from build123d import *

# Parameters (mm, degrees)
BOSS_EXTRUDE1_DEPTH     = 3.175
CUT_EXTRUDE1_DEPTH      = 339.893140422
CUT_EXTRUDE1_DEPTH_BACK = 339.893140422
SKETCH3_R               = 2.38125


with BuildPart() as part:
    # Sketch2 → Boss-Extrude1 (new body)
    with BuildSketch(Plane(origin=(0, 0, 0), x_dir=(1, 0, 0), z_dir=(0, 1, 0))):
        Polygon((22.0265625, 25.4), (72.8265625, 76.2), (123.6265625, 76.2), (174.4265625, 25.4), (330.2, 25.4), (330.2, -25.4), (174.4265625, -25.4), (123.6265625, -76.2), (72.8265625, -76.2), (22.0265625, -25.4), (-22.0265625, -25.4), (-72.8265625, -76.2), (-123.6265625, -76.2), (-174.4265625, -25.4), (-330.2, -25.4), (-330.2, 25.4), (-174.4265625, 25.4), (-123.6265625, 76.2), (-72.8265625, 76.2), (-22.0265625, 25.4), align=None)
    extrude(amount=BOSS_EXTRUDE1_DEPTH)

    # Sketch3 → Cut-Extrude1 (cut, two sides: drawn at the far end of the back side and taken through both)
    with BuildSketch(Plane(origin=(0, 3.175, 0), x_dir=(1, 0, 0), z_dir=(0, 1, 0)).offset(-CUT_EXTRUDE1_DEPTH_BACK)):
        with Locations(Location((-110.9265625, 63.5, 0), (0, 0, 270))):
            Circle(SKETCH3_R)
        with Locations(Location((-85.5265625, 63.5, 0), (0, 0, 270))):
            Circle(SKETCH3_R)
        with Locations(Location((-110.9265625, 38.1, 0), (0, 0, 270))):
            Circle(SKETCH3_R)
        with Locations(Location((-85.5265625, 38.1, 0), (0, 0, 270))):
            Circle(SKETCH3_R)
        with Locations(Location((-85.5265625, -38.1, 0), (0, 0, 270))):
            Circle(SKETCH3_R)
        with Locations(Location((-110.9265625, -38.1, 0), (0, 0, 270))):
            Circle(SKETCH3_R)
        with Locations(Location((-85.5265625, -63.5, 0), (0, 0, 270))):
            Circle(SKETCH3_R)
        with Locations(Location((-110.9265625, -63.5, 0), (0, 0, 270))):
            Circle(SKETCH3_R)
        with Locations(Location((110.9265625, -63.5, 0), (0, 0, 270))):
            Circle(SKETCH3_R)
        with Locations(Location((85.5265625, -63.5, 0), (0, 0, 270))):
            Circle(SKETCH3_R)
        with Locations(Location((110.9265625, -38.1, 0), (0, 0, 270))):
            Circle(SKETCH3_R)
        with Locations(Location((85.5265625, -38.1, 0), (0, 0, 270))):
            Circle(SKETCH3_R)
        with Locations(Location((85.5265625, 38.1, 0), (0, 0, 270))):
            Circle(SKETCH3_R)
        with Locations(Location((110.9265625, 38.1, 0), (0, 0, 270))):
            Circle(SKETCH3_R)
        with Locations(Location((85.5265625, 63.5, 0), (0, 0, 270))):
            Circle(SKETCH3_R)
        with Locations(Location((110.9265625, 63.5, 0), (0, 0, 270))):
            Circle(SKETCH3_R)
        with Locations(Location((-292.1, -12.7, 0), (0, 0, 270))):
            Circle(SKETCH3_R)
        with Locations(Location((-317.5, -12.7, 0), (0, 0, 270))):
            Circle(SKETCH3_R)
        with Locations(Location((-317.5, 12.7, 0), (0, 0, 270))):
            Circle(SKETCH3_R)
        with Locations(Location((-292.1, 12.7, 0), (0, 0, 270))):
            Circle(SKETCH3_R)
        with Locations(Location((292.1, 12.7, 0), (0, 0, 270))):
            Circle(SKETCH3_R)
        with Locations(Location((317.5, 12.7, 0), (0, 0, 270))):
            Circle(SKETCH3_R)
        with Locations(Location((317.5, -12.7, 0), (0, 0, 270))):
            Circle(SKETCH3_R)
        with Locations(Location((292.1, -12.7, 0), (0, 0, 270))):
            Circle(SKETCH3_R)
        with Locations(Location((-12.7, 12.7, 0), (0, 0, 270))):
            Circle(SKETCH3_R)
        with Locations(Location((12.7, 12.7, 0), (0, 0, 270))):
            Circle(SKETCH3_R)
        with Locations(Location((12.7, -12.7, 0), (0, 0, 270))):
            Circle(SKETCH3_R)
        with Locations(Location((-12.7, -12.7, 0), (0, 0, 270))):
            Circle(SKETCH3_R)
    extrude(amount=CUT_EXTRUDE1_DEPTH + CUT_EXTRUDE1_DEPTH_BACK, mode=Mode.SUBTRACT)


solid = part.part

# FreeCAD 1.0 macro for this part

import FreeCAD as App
import Part
import Sketcher

V = App.Vector
Q = App.Units.Quantity


def add_polygon(sketch, points):
    """Adds a closed chain of lines whose ends are joined by coincident constraints."""
    first, n = sketch.GeometryCount, len(points)
    for a, b in zip(points, points[1:] + points[:1]):
        sketch.addGeometry(Part.LineSegment(App.Vector(*a, 0), App.Vector(*b, 0)), False)
    for i in range(n):
        sketch.addConstraint(Sketcher.Constraint("Coincident", first + i, 2, first + (i + 1) % n, 1))

doc = App.newDocument("Part")
body = doc.addObject("PartDesign::Body", "Body")

# Sketch on XZ plane
sketch1 = body.newObject("Sketcher::SketchObject", "Sketch")
sketch1.AttachmentSupport = (doc.getObject("XZ_Plane"), [""])
sketch1.MapMode = "FlatFace"
add_polygon(sketch1, [(73, -76), (22, -25), (-22, -25), (-73, -76), (-124, -76), (-174, -25), (-330, -25), (-330, 25), (-174, 25), (-124, 76), (-73, 76), (-22, 25), (22, 25), (73, 76), (124, 76), (174, 25), (330, 25), (330, -25), (174, -25), (124, -76)])  # lines 0-19
sketch1.addConstraint([
    Sketcher.Constraint("Horizontal", 1),
    Sketcher.Constraint("Horizontal", 3),
    Sketcher.Constraint("Horizontal", 5),
    Sketcher.Constraint("Vertical", 6),
    Sketcher.Constraint("Horizontal", 7),
    Sketcher.Constraint("Horizontal", 9),
    Sketcher.Constraint("Horizontal", 11),
    Sketcher.Constraint("Horizontal", 13),
    Sketcher.Constraint("Horizontal", 15),
    Sketcher.Constraint("Vertical", 16),
    Sketcher.Constraint("Horizontal", 17),
    Sketcher.Constraint("Horizontal", 19),
    Sketcher.Constraint("Symmetric", 0, 2, 10, 2, -1, 1),
    Sketcher.Constraint("Symmetric", 2, 2, 12, 2, -1, 1),
    Sketcher.Constraint("Symmetric", 4, 2, 14, 2, -1, 1),
    Sketcher.Constraint("Symmetric", 6, 2, 16, 2, -1, 1),
    Sketcher.Constraint("Symmetric", 8, 2, 18, 2, -1, 1),
    Sketcher.Constraint("Symmetric", 9, 2, 12, 2, -2),
    Sketcher.Constraint("Symmetric", 7, 2, 14, 2, -2),
    Sketcher.Constraint("Perpendicular", 0, 2),
    Sketcher.Constraint("Perpendicular", 2, 4),
    Sketcher.Constraint("Perpendicular", 4, 8),
    Sketcher.Constraint("Perpendicular", 8, 10),
    Sketcher.Constraint("Perpendicular", 10, 12),
    Sketcher.Constraint("Perpendicular", 12, 14),
    Sketcher.Constraint("Perpendicular", 14, 18),
    Sketcher.Constraint("Horizontal", 1, 2, 4, 2),
    Sketcher.Constraint("Vertical", 3, 2, 8, 2),
    Sketcher.Constraint("Equal", 19, 6),
    Sketcher.Constraint("DistanceX", 3, 2, 3, 1, Q("2 in")),
    Sketcher.Constraint("DistanceY", 2, 2, -1, 1, Q("3 in")),
    Sketcher.Constraint("DistanceX", 5, 2, -1, 1, Q("13 in")),
    Sketcher.Constraint("DistanceX", 1, 2, 1, 1, Q("1.734375 in")),
])
pad1 = body.newObject("PartDesign::Pad", "Pad")
pad1.Profile = sketch1
pad1.Length = Q("0.125 in")
pad1.Reversed = True

# Sketch on XZ plane
sketch2 = body.newObject("Sketcher::SketchObject", "Sketch001")
sketch2.AttachmentSupport = (doc.getObject("XZ_Plane"), [""])
sketch2.MapMode = "FlatFace"
sketch2.AttachmentOffset = App.Placement(V(0, 0, -0.125 * 25.4), App.Rotation())
sketch2.addGeometry([
    Part.Circle(V(-110.9, -63.5, 0), V(0, 0, 1), 2.4),  # 0
    Part.Circle(V(-85.5, -63.5, 0), V(0, 0, 1), 2.4),  # 1
    Part.Circle(V(-110.9, -38.1, 0), V(0, 0, 1), 2.4),  # 2
    Part.Circle(V(-85.5, -38.1, 0), V(0, 0, 1), 2.4),  # 3
    Part.Circle(V(-85.5, 38.1, 0), V(0, 0, 1), 2.4),  # 4
    Part.Circle(V(-110.9, 38.1, 0), V(0, 0, 1), 2.4),  # 5
    Part.Circle(V(-85.5, 63.5, 0), V(0, 0, 1), 2.4),  # 6
    Part.Circle(V(-110.9, 63.5, 0), V(0, 0, 1), 2.4),  # 7
    Part.Circle(V(110.9, 63.5, 0), V(0, 0, 1), 2.4),  # 8
    Part.Circle(V(85.5, 63.5, 0), V(0, 0, 1), 2.4),  # 9
    Part.Circle(V(110.9, 38.1, 0), V(0, 0, 1), 2.4),  # 10
    Part.Circle(V(85.5, 38.1, 0), V(0, 0, 1), 2.4),  # 11
    Part.Circle(V(85.5, -38.1, 0), V(0, 0, 1), 2.4),  # 12
    Part.Circle(V(110.9, -38.1, 0), V(0, 0, 1), 2.4),  # 13
    Part.Circle(V(85.5, -63.5, 0), V(0, 0, 1), 2.4),  # 14
    Part.Circle(V(110.9, -63.5, 0), V(0, 0, 1), 2.4),  # 15
    Part.Circle(V(-292.1, 12.7, 0), V(0, 0, 1), 2.4),  # 16
    Part.Circle(V(-317.5, 12.7, 0), V(0, 0, 1), 2.4),  # 17
    Part.Circle(V(-317.5, -12.7, 0), V(0, 0, 1), 2.4),  # 18
    Part.Circle(V(-292.1, -12.7, 0), V(0, 0, 1), 2.4),  # 19
    Part.Circle(V(292.1, -12.7, 0), V(0, 0, 1), 2.4),  # 20
    Part.Circle(V(317.5, -12.7, 0), V(0, 0, 1), 2.4),  # 21
    Part.Circle(V(317.5, 12.7, 0), V(0, 0, 1), 2.4),  # 22
    Part.Circle(V(292.1, 12.7, 0), V(0, 0, 1), 2.4),  # 23
    Part.Circle(V(-12.7, -12.7, 0), V(0, 0, 1), 2.4),  # 24
    Part.Circle(V(12.7, -12.7, 0), V(0, 0, 1), 2.4),  # 25
    Part.Circle(V(12.7, 12.7, 0), V(0, 0, 1), 2.4),  # 26
    Part.Circle(V(-12.7, 12.7, 0), V(0, 0, 1), 2.4),  # 27
], False)
sketch2.addConstraint([
    Sketcher.Constraint("Equal", 0, 1),
    Sketcher.Constraint("Equal", 1, 2),
    Sketcher.Constraint("Equal", 2, 3),
    Sketcher.Constraint("Equal", 3, 4),
    Sketcher.Constraint("Equal", 4, 5),
    Sketcher.Constraint("Equal", 5, 6),
    Sketcher.Constraint("Equal", 6, 7),
    Sketcher.Constraint("Equal", 7, 8),
    Sketcher.Constraint("Equal", 8, 9),
    Sketcher.Constraint("Equal", 9, 10),
    Sketcher.Constraint("Equal", 10, 11),
    Sketcher.Constraint("Equal", 11, 12),
    Sketcher.Constraint("Equal", 12, 13),
    Sketcher.Constraint("Equal", 13, 14),
    Sketcher.Constraint("Equal", 14, 15),
    Sketcher.Constraint("Equal", 15, 16),
    Sketcher.Constraint("Equal", 16, 17),
    Sketcher.Constraint("Equal", 17, 18),
    Sketcher.Constraint("Equal", 18, 19),
    Sketcher.Constraint("Equal", 19, 20),
    Sketcher.Constraint("Equal", 20, 21),
    Sketcher.Constraint("Equal", 21, 22),
    Sketcher.Constraint("Equal", 22, 23),
    Sketcher.Constraint("Equal", 23, 24),
    Sketcher.Constraint("Equal", 24, 25),
    Sketcher.Constraint("Equal", 25, 26),
    Sketcher.Constraint("Equal", 26, 27),
    Sketcher.Constraint("Symmetric", 0, 3, 8, 3, -1, 1),
    Sketcher.Constraint("Symmetric", 1, 3, 9, 3, -1, 1),
    Sketcher.Constraint("Symmetric", 2, 3, 10, 3, -1, 1),
    Sketcher.Constraint("Symmetric", 3, 3, 11, 3, -1, 1),
    Sketcher.Constraint("Symmetric", 4, 3, 12, 3, -1, 1),
    Sketcher.Constraint("Symmetric", 5, 3, 13, 3, -1, 1),
    Sketcher.Constraint("Symmetric", 6, 3, 14, 3, -1, 1),
    Sketcher.Constraint("Symmetric", 7, 3, 15, 3, -1, 1),
    Sketcher.Constraint("Symmetric", 16, 3, 20, 3, -1, 1),
    Sketcher.Constraint("Symmetric", 17, 3, 21, 3, -1, 1),
    Sketcher.Constraint("Symmetric", 18, 3, 22, 3, -1, 1),
    Sketcher.Constraint("Symmetric", 19, 3, 23, 3, -1, 1),
    Sketcher.Constraint("Symmetric", 24, 3, 26, 3, -1, 1),
    Sketcher.Constraint("Symmetric", 25, 3, 27, 3, -1, 1),
    Sketcher.Constraint("Symmetric", 7, 3, 8, 3, -2),
    Sketcher.Constraint("Symmetric", 6, 3, 9, 3, -2),
    Sketcher.Constraint("Symmetric", 5, 3, 10, 3, -2),
    Sketcher.Constraint("Symmetric", 4, 3, 11, 3, -2),
    Sketcher.Constraint("Symmetric", 19, 3, 20, 3, -2),
    Sketcher.Constraint("Symmetric", 18, 3, 21, 3, -2),
    Sketcher.Constraint("Symmetric", 24, 3, 25, 3, -2),
    Sketcher.Constraint("Horizontal", 0, 3, 1, 3),
    Sketcher.Constraint("Horizontal", 2, 3, 3, 3),
    Sketcher.Constraint("Horizontal", 16, 3, 17, 3),
    Sketcher.Constraint("Horizontal", 21, 3, 24, 3),
    Sketcher.Constraint("Vertical", 0, 3, 2, 3),
    Sketcher.Constraint("Vertical", 1, 3, 3, 3),
    Sketcher.Constraint("Diameter", 0, Q("0.1875 in")),
    Sketcher.Constraint("DistanceX", 0, 3, 1, 3, Q("1 in")),
    Sketcher.Constraint("DistanceY", 0, 3, 2, 3, Q("1 in")),
    Sketcher.Constraint("DistanceY", 3, 3, 4, 3, Q("3 in")),
    Sketcher.Constraint("DistanceY", 16, 3, 5, 3, Q("1 in")),
    Sketcher.Constraint("DistanceX", 17, 3, 16, 3, Q("1 in")),
    Sketcher.Constraint("DistanceX", 24, 3, 25, 3, Q("1 in")),
    Sketcher.Constraint("DistanceX", 16, 3, -1, 1, Q("11.5 in")),
    Sketcher.Constraint("DistanceX", 6, 3, 8, 3, Q("7.734375 in")),
])
pocket1 = body.newObject("PartDesign::Pocket", "Pocket")
pocket1.Profile = sketch2
pocket1.Type = "ThroughAll"
pocket1.Midplane = True

doc.recompute()
